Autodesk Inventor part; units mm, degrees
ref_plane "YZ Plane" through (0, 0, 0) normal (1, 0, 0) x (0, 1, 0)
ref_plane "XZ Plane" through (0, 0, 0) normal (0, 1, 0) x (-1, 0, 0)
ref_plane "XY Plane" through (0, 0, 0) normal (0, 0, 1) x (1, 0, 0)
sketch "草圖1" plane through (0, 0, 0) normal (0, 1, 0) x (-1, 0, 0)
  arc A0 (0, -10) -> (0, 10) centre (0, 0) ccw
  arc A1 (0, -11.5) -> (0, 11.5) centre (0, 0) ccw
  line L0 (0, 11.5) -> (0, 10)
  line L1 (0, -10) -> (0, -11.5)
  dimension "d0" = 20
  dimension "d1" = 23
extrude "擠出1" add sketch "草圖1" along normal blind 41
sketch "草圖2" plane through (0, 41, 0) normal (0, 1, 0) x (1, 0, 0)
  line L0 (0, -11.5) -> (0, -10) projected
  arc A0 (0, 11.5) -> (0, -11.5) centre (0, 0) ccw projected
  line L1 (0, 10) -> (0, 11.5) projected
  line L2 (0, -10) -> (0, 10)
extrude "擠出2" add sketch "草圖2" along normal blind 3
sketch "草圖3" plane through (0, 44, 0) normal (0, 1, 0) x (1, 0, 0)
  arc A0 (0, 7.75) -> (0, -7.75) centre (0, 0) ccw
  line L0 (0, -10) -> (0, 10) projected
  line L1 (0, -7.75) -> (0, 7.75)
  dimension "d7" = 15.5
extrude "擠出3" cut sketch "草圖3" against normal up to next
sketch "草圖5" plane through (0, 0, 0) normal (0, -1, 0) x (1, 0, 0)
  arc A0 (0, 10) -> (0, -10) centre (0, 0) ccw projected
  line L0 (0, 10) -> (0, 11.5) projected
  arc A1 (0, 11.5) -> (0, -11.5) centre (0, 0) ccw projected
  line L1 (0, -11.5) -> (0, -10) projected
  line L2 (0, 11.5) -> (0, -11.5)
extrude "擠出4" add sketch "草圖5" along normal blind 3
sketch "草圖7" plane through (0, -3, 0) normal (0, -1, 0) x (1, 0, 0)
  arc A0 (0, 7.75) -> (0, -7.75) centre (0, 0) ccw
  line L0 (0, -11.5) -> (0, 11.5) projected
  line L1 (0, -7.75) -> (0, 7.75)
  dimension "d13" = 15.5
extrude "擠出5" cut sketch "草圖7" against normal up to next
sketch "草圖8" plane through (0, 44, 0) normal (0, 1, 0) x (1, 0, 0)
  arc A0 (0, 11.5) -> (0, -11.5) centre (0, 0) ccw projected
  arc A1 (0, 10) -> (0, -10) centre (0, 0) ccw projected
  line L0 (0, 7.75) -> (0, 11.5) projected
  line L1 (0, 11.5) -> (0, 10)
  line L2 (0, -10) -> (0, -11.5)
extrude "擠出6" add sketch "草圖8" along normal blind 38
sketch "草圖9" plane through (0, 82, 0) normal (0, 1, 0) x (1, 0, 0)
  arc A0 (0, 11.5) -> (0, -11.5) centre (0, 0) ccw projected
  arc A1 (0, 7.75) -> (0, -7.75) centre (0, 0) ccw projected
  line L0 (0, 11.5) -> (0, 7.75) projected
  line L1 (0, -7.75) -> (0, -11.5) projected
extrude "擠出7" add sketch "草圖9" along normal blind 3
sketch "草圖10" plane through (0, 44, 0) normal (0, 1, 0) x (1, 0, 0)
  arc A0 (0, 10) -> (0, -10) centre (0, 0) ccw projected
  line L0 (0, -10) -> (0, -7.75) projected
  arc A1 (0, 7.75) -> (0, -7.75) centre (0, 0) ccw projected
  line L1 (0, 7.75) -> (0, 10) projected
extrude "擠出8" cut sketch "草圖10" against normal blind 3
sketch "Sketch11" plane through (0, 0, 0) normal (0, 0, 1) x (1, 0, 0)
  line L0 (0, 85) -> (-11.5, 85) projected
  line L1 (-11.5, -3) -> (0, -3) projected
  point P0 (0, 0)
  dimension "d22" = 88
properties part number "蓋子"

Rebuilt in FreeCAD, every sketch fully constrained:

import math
import FreeCAD as App
import Part
import Sketcher
Q = App.Units.Quantity

doc = App.newDocument("Part")
body = doc.addObject("PartDesign::Body", "Body")

sketch1 = doc.addObject("Sketcher::SketchObject", "Sketch")
body.addObject(sketch1)
sketch1.AttachmentSupport = (doc.XZ_Plane, [""])
sketch1.MapMode = "FlatFace"
sketch1.addGeometry(Part.ArcOfCircle(Part.Circle(App.Vector(0, 0, 0), App.Vector(0, 0, 1), 10), math.radians(90), math.radians(270)), False)
sketch1.addGeometry(Part.LineSegment(App.Vector(0, -10, 0), App.Vector(0, -11.5, 0)), False)
sketch1.addGeometry(Part.ArcOfCircle(Part.Circle(App.Vector(0, 0, 0), App.Vector(0, 0, 1), 11.5), math.radians(90), math.radians(270)), False)
sketch1.addGeometry(Part.LineSegment(App.Vector(0, 11.5, 0), App.Vector(0, 10, 0)), False)
sketch1.addConstraint(Sketcher.Constraint("Coincident", 0, 2, 1, 1))
sketch1.addConstraint(Sketcher.Constraint("Coincident", 1, 2, 2, 2))
sketch1.addConstraint(Sketcher.Constraint("Coincident", 2, 1, 3, 1))
sketch1.addConstraint(Sketcher.Constraint("Coincident", 3, 2, 0, 1))
sketch1.addConstraint(Sketcher.Constraint("Vertical", 1))
sketch1.addConstraint(Sketcher.Constraint("Vertical", 3))
sketch1.addConstraint(Sketcher.Constraint("Coincident", 0, 3, -1, 1))
sketch1.addConstraint(Sketcher.Constraint("Coincident", 2, 3, -1, 1))
sketch1.addConstraint(Sketcher.Constraint("PointOnObject", 0, 2, -2))
sketch1.addConstraint(Sketcher.Constraint("PointOnObject", 2, 1, -2))
sketch1.addConstraint(Sketcher.Constraint("Radius", 0, Q("10 mm")))
sketch1.addConstraint(Sketcher.Constraint("Radius", 2, Q("11.5 mm")))
pad1 = doc.addObject("PartDesign::Pad", "Pad")
body.addObject(pad1)
pad1.Profile = sketch1
pad1.Length = 41
pad1.Reversed = True

sketch2 = doc.addObject("Sketcher::SketchObject", "Sketch001")
body.addObject(sketch2)
sketch2.AttachmentSupport = (doc.XZ_Plane, [""])
sketch2.MapMode = "FlatFace"
sketch2.AttachmentOffset = App.Placement(App.Vector(0, 0, -41), App.Rotation())
sketch2.addGeometry(Part.ArcOfCircle(Part.Circle(App.Vector(0, 0, 0), App.Vector(0, 0, 1), 12), math.radians(90), math.radians(270)), False)
sketch2.addGeometry(Part.LineSegment(App.Vector(0, 12, 0), App.Vector(0, -12, 0)), False)
sketch2.addConstraint(Sketcher.Constraint("Coincident", 0, 1, 1, 1))
sketch2.addConstraint(Sketcher.Constraint("Coincident", 1, 2, 0, 2))
sketch2.addConstraint(Sketcher.Constraint("Vertical", 1))
sketch2.addConstraint(Sketcher.Constraint("Coincident", 0, 3, -1, 1))
sketch2.addConstraint(Sketcher.Constraint("PointOnObject", 0, 1, -2))
sketch2.addConstraint(Sketcher.Constraint("Radius", 0, Q("11.5 mm")))
pad2 = doc.addObject("PartDesign::Pad", "Pad001")
body.addObject(pad2)
pad2.Profile = sketch2
pad2.Length = 3
pad2.Reversed = True

sketch3 = doc.addObject("Sketcher::SketchObject", "Sketch002")
body.addObject(sketch3)
sketch3.AttachmentSupport = (doc.XZ_Plane, [""])
sketch3.MapMode = "FlatFace"
sketch3.AttachmentOffset = App.Placement(App.Vector(0, 0, -44), App.Rotation())
sketch3.addGeometry(Part.LineSegment(App.Vector(0, 8, 0), App.Vector(0, -8, 0)), False)
sketch3.addGeometry(Part.ArcOfCircle(Part.Circle(App.Vector(0, 0, 0), App.Vector(0, 0, 1), 8), math.radians(90), math.radians(270)), False)
sketch3.addConstraint(Sketcher.Constraint("Coincident", 0, 1, 1, 1))
sketch3.addConstraint(Sketcher.Constraint("Coincident", 1, 2, 0, 2))
sketch3.addConstraint(Sketcher.Constraint("Vertical", 0))
sketch3.addConstraint(Sketcher.Constraint("Coincident", 1, 3, -1, 1))
sketch3.addConstraint(Sketcher.Constraint("PointOnObject", 0, 1, -2))
sketch3.addConstraint(Sketcher.Constraint("Radius", 1, Q("7.75 mm")))
pocket1 = doc.addObject("PartDesign::Pocket", "Pocket")
body.addObject(pocket1)
pocket1.Profile = sketch3
pocket1.Type = "UpToFirst"
pocket1.Reversed = True

sketch4 = doc.addObject("Sketcher::SketchObject", "Sketch003")
body.addObject(sketch4)
sketch4.AttachmentSupport = (doc.XZ_Plane, [""])
sketch4.MapMode = "FlatFace"
sketch4.addGeometry(Part.ArcOfCircle(Part.Circle(App.Vector(0, 0, 0), App.Vector(0, 0, 1), 12), math.radians(90), math.radians(270)), False)
sketch4.addGeometry(Part.LineSegment(App.Vector(0, -12, 0), App.Vector(0, 12, 0)), False)
sketch4.addConstraint(Sketcher.Constraint("Coincident", 0, 1, 1, 2))
sketch4.addConstraint(Sketcher.Constraint("Coincident", 1, 1, 0, 2))
sketch4.addConstraint(Sketcher.Constraint("Vertical", 1))
sketch4.addConstraint(Sketcher.Constraint("Coincident", 0, 3, -1, 1))
sketch4.addConstraint(Sketcher.Constraint("PointOnObject", 0, 1, -2))
sketch4.addConstraint(Sketcher.Constraint("Radius", 0, Q("11.5 mm")))
pad3 = doc.addObject("PartDesign::Pad", "Pad002")
body.addObject(pad3)
pad3.Profile = sketch4
pad3.Length = 3

sketch5 = doc.addObject("Sketcher::SketchObject", "Sketch004")
body.addObject(sketch5)
sketch5.AttachmentSupport = (doc.XZ_Plane, [""])
sketch5.MapMode = "FlatFace"
sketch5.AttachmentOffset = App.Placement(App.Vector(0, 0, 3), App.Rotation())
sketch5.addGeometry(Part.LineSegment(App.Vector(0, -8, 0), App.Vector(0, 8, 0)), False)
sketch5.addGeometry(Part.ArcOfCircle(Part.Circle(App.Vector(0, 0, 0), App.Vector(0, 0, 1), 8), math.radians(90), math.radians(270)), False)
sketch5.addConstraint(Sketcher.Constraint("Coincident", 0, 1, 1, 2))
sketch5.addConstraint(Sketcher.Constraint("Coincident", 1, 1, 0, 2))
sketch5.addConstraint(Sketcher.Constraint("Vertical", 0))
sketch5.addConstraint(Sketcher.Constraint("Coincident", 1, 3, -1, 1))
sketch5.addConstraint(Sketcher.Constraint("PointOnObject", 0, 1, -2))
sketch5.addConstraint(Sketcher.Constraint("Radius", 1, Q("7.75 mm")))
pocket2 = doc.addObject("PartDesign::Pocket", "Pocket001")
body.addObject(pocket2)
pocket2.Profile = sketch5
pocket2.Type = "UpToFirst"

sketch6 = doc.addObject("Sketcher::SketchObject", "Sketch005")
body.addObject(sketch6)
sketch6.AttachmentSupport = (doc.XZ_Plane, [""])
sketch6.MapMode = "FlatFace"
sketch6.AttachmentOffset = App.Placement(App.Vector(0, 0, -44), App.Rotation())
sketch6.addGeometry(Part.LineSegment(App.Vector(0, -10, 0), App.Vector(0, -11.5, 0)), False)
sketch6.addGeometry(Part.ArcOfCircle(Part.Circle(App.Vector(0, 0, 0), App.Vector(0, 0, 1), 11.5), math.radians(90), math.radians(270)), False)
sketch6.addGeometry(Part.LineSegment(App.Vector(0, 11.5, 0), App.Vector(0, 10, 0)), False)
sketch6.addGeometry(Part.ArcOfCircle(Part.Circle(App.Vector(0, 0, 0), App.Vector(0, 0, 1), 10), math.radians(90), math.radians(270)), False)
sketch6.addConstraint(Sketcher.Constraint("Coincident", 0, 2, 1, 2))
sketch6.addConstraint(Sketcher.Constraint("Coincident", 1, 1, 2, 1))
sketch6.addConstraint(Sketcher.Constraint("Coincident", 2, 2, 3, 1))
sketch6.addConstraint(Sketcher.Constraint("Coincident", 3, 2, 0, 1))
sketch6.addConstraint(Sketcher.Constraint("Vertical", 0))
sketch6.addConstraint(Sketcher.Constraint("Vertical", 2))
sketch6.addConstraint(Sketcher.Constraint("Coincident", 1, 3, -1, 1))
sketch6.addConstraint(Sketcher.Constraint("Coincident", 3, 3, -1, 1))
sketch6.addConstraint(Sketcher.Constraint("PointOnObject", 0, 2, -2))
sketch6.addConstraint(Sketcher.Constraint("PointOnObject", 1, 1, -2))
sketch6.addConstraint(Sketcher.Constraint("Radius", 3, Q("10 mm")))
sketch6.addConstraint(Sketcher.Constraint("Radius", 1, Q("11.5 mm")))
pad4 = doc.addObject("PartDesign::Pad", "Pad003")
body.addObject(pad4)
pad4.Profile = sketch6
pad4.Length = 38
pad4.Reversed = True

sketch7 = doc.addObject("Sketcher::SketchObject", "Sketch006")
body.addObject(sketch7)
sketch7.AttachmentSupport = (doc.XZ_Plane, [""])
sketch7.MapMode = "FlatFace"
sketch7.AttachmentOffset = App.Placement(App.Vector(0, 0, -82), App.Rotation())
sketch7.addGeometry(Part.LineSegment(App.Vector(0, -7.8, 0), App.Vector(0, -11.5, 0)), False)
sketch7.addGeometry(Part.ArcOfCircle(Part.Circle(App.Vector(0, 0, 0), App.Vector(0, 0, 1), 11.5), math.radians(90), math.radians(270)), False)
sketch7.addGeometry(Part.LineSegment(App.Vector(0, 11.5, 0), App.Vector(0, 7.8, 0)), False)
sketch7.addGeometry(Part.ArcOfCircle(Part.Circle(App.Vector(0, 0, 0), App.Vector(0, 0, 1), 7.8), math.radians(90), math.radians(270)), False)
sketch7.addConstraint(Sketcher.Constraint("Coincident", 0, 2, 1, 2))
sketch7.addConstraint(Sketcher.Constraint("Coincident", 1, 1, 2, 1))
sketch7.addConstraint(Sketcher.Constraint("Coincident", 2, 2, 3, 1))
sketch7.addConstraint(Sketcher.Constraint("Coincident", 3, 2, 0, 1))
sketch7.addConstraint(Sketcher.Constraint("Vertical", 0))
sketch7.addConstraint(Sketcher.Constraint("Vertical", 2))
sketch7.addConstraint(Sketcher.Constraint("Coincident", 1, 3, -1, 1))
sketch7.addConstraint(Sketcher.Constraint("Coincident", 3, 3, -1, 1))
sketch7.addConstraint(Sketcher.Constraint("PointOnObject", 0, 2, -2))
sketch7.addConstraint(Sketcher.Constraint("PointOnObject", 1, 1, -2))
sketch7.addConstraint(Sketcher.Constraint("Radius", 1, Q("11.5 mm")))
sketch7.addConstraint(Sketcher.Constraint("Radius", 3, Q("7.75 mm")))
pad5 = doc.addObject("PartDesign::Pad", "Pad004")
body.addObject(pad5)
pad5.Profile = sketch7
pad5.Length = 3
pad5.Reversed = True

sketch8 = doc.addObject("Sketcher::SketchObject", "Sketch007")
body.addObject(sketch8)
sketch8.AttachmentSupport = (doc.XZ_Plane, [""])
sketch8.MapMode = "FlatFace"
sketch8.AttachmentOffset = App.Placement(App.Vector(0, 0, -44), App.Rotation())
sketch8.addGeometry(Part.LineSegment(App.Vector(0, -7.8, 0), App.Vector(0, -10, 0)), False)
sketch8.addGeometry(Part.ArcOfCircle(Part.Circle(App.Vector(0, 0, 0), App.Vector(0, 0, 1), 10), math.radians(90), math.radians(270)), False)
sketch8.addGeometry(Part.LineSegment(App.Vector(0, 10, 0), App.Vector(0, 7.8, 0)), False)
sketch8.addGeometry(Part.ArcOfCircle(Part.Circle(App.Vector(0, 0, 0), App.Vector(0, 0, 1), 7.8), math.radians(90), math.radians(270)), False)
sketch8.addConstraint(Sketcher.Constraint("Coincident", 0, 2, 1, 2))
sketch8.addConstraint(Sketcher.Constraint("Coincident", 1, 1, 2, 1))
sketch8.addConstraint(Sketcher.Constraint("Coincident", 2, 2, 3, 1))
sketch8.addConstraint(Sketcher.Constraint("Coincident", 3, 2, 0, 1))
sketch8.addConstraint(Sketcher.Constraint("Vertical", 0))
sketch8.addConstraint(Sketcher.Constraint("Vertical", 2))
sketch8.addConstraint(Sketcher.Constraint("Coincident", 1, 3, -1, 1))
sketch8.addConstraint(Sketcher.Constraint("Coincident", 3, 3, -1, 1))
sketch8.addConstraint(Sketcher.Constraint("PointOnObject", 0, 2, -2))
sketch8.addConstraint(Sketcher.Constraint("PointOnObject", 1, 1, -2))
sketch8.addConstraint(Sketcher.Constraint("Radius", 1, Q("10 mm")))
sketch8.addConstraint(Sketcher.Constraint("Radius", 3, Q("7.75 mm")))
pocket3 = doc.addObject("PartDesign::Pocket", "Pocket002")
body.addObject(pocket3)
pocket3.Profile = sketch8
pocket3.Length = 3
pocket3.Reversed = True

doc.recompute()
